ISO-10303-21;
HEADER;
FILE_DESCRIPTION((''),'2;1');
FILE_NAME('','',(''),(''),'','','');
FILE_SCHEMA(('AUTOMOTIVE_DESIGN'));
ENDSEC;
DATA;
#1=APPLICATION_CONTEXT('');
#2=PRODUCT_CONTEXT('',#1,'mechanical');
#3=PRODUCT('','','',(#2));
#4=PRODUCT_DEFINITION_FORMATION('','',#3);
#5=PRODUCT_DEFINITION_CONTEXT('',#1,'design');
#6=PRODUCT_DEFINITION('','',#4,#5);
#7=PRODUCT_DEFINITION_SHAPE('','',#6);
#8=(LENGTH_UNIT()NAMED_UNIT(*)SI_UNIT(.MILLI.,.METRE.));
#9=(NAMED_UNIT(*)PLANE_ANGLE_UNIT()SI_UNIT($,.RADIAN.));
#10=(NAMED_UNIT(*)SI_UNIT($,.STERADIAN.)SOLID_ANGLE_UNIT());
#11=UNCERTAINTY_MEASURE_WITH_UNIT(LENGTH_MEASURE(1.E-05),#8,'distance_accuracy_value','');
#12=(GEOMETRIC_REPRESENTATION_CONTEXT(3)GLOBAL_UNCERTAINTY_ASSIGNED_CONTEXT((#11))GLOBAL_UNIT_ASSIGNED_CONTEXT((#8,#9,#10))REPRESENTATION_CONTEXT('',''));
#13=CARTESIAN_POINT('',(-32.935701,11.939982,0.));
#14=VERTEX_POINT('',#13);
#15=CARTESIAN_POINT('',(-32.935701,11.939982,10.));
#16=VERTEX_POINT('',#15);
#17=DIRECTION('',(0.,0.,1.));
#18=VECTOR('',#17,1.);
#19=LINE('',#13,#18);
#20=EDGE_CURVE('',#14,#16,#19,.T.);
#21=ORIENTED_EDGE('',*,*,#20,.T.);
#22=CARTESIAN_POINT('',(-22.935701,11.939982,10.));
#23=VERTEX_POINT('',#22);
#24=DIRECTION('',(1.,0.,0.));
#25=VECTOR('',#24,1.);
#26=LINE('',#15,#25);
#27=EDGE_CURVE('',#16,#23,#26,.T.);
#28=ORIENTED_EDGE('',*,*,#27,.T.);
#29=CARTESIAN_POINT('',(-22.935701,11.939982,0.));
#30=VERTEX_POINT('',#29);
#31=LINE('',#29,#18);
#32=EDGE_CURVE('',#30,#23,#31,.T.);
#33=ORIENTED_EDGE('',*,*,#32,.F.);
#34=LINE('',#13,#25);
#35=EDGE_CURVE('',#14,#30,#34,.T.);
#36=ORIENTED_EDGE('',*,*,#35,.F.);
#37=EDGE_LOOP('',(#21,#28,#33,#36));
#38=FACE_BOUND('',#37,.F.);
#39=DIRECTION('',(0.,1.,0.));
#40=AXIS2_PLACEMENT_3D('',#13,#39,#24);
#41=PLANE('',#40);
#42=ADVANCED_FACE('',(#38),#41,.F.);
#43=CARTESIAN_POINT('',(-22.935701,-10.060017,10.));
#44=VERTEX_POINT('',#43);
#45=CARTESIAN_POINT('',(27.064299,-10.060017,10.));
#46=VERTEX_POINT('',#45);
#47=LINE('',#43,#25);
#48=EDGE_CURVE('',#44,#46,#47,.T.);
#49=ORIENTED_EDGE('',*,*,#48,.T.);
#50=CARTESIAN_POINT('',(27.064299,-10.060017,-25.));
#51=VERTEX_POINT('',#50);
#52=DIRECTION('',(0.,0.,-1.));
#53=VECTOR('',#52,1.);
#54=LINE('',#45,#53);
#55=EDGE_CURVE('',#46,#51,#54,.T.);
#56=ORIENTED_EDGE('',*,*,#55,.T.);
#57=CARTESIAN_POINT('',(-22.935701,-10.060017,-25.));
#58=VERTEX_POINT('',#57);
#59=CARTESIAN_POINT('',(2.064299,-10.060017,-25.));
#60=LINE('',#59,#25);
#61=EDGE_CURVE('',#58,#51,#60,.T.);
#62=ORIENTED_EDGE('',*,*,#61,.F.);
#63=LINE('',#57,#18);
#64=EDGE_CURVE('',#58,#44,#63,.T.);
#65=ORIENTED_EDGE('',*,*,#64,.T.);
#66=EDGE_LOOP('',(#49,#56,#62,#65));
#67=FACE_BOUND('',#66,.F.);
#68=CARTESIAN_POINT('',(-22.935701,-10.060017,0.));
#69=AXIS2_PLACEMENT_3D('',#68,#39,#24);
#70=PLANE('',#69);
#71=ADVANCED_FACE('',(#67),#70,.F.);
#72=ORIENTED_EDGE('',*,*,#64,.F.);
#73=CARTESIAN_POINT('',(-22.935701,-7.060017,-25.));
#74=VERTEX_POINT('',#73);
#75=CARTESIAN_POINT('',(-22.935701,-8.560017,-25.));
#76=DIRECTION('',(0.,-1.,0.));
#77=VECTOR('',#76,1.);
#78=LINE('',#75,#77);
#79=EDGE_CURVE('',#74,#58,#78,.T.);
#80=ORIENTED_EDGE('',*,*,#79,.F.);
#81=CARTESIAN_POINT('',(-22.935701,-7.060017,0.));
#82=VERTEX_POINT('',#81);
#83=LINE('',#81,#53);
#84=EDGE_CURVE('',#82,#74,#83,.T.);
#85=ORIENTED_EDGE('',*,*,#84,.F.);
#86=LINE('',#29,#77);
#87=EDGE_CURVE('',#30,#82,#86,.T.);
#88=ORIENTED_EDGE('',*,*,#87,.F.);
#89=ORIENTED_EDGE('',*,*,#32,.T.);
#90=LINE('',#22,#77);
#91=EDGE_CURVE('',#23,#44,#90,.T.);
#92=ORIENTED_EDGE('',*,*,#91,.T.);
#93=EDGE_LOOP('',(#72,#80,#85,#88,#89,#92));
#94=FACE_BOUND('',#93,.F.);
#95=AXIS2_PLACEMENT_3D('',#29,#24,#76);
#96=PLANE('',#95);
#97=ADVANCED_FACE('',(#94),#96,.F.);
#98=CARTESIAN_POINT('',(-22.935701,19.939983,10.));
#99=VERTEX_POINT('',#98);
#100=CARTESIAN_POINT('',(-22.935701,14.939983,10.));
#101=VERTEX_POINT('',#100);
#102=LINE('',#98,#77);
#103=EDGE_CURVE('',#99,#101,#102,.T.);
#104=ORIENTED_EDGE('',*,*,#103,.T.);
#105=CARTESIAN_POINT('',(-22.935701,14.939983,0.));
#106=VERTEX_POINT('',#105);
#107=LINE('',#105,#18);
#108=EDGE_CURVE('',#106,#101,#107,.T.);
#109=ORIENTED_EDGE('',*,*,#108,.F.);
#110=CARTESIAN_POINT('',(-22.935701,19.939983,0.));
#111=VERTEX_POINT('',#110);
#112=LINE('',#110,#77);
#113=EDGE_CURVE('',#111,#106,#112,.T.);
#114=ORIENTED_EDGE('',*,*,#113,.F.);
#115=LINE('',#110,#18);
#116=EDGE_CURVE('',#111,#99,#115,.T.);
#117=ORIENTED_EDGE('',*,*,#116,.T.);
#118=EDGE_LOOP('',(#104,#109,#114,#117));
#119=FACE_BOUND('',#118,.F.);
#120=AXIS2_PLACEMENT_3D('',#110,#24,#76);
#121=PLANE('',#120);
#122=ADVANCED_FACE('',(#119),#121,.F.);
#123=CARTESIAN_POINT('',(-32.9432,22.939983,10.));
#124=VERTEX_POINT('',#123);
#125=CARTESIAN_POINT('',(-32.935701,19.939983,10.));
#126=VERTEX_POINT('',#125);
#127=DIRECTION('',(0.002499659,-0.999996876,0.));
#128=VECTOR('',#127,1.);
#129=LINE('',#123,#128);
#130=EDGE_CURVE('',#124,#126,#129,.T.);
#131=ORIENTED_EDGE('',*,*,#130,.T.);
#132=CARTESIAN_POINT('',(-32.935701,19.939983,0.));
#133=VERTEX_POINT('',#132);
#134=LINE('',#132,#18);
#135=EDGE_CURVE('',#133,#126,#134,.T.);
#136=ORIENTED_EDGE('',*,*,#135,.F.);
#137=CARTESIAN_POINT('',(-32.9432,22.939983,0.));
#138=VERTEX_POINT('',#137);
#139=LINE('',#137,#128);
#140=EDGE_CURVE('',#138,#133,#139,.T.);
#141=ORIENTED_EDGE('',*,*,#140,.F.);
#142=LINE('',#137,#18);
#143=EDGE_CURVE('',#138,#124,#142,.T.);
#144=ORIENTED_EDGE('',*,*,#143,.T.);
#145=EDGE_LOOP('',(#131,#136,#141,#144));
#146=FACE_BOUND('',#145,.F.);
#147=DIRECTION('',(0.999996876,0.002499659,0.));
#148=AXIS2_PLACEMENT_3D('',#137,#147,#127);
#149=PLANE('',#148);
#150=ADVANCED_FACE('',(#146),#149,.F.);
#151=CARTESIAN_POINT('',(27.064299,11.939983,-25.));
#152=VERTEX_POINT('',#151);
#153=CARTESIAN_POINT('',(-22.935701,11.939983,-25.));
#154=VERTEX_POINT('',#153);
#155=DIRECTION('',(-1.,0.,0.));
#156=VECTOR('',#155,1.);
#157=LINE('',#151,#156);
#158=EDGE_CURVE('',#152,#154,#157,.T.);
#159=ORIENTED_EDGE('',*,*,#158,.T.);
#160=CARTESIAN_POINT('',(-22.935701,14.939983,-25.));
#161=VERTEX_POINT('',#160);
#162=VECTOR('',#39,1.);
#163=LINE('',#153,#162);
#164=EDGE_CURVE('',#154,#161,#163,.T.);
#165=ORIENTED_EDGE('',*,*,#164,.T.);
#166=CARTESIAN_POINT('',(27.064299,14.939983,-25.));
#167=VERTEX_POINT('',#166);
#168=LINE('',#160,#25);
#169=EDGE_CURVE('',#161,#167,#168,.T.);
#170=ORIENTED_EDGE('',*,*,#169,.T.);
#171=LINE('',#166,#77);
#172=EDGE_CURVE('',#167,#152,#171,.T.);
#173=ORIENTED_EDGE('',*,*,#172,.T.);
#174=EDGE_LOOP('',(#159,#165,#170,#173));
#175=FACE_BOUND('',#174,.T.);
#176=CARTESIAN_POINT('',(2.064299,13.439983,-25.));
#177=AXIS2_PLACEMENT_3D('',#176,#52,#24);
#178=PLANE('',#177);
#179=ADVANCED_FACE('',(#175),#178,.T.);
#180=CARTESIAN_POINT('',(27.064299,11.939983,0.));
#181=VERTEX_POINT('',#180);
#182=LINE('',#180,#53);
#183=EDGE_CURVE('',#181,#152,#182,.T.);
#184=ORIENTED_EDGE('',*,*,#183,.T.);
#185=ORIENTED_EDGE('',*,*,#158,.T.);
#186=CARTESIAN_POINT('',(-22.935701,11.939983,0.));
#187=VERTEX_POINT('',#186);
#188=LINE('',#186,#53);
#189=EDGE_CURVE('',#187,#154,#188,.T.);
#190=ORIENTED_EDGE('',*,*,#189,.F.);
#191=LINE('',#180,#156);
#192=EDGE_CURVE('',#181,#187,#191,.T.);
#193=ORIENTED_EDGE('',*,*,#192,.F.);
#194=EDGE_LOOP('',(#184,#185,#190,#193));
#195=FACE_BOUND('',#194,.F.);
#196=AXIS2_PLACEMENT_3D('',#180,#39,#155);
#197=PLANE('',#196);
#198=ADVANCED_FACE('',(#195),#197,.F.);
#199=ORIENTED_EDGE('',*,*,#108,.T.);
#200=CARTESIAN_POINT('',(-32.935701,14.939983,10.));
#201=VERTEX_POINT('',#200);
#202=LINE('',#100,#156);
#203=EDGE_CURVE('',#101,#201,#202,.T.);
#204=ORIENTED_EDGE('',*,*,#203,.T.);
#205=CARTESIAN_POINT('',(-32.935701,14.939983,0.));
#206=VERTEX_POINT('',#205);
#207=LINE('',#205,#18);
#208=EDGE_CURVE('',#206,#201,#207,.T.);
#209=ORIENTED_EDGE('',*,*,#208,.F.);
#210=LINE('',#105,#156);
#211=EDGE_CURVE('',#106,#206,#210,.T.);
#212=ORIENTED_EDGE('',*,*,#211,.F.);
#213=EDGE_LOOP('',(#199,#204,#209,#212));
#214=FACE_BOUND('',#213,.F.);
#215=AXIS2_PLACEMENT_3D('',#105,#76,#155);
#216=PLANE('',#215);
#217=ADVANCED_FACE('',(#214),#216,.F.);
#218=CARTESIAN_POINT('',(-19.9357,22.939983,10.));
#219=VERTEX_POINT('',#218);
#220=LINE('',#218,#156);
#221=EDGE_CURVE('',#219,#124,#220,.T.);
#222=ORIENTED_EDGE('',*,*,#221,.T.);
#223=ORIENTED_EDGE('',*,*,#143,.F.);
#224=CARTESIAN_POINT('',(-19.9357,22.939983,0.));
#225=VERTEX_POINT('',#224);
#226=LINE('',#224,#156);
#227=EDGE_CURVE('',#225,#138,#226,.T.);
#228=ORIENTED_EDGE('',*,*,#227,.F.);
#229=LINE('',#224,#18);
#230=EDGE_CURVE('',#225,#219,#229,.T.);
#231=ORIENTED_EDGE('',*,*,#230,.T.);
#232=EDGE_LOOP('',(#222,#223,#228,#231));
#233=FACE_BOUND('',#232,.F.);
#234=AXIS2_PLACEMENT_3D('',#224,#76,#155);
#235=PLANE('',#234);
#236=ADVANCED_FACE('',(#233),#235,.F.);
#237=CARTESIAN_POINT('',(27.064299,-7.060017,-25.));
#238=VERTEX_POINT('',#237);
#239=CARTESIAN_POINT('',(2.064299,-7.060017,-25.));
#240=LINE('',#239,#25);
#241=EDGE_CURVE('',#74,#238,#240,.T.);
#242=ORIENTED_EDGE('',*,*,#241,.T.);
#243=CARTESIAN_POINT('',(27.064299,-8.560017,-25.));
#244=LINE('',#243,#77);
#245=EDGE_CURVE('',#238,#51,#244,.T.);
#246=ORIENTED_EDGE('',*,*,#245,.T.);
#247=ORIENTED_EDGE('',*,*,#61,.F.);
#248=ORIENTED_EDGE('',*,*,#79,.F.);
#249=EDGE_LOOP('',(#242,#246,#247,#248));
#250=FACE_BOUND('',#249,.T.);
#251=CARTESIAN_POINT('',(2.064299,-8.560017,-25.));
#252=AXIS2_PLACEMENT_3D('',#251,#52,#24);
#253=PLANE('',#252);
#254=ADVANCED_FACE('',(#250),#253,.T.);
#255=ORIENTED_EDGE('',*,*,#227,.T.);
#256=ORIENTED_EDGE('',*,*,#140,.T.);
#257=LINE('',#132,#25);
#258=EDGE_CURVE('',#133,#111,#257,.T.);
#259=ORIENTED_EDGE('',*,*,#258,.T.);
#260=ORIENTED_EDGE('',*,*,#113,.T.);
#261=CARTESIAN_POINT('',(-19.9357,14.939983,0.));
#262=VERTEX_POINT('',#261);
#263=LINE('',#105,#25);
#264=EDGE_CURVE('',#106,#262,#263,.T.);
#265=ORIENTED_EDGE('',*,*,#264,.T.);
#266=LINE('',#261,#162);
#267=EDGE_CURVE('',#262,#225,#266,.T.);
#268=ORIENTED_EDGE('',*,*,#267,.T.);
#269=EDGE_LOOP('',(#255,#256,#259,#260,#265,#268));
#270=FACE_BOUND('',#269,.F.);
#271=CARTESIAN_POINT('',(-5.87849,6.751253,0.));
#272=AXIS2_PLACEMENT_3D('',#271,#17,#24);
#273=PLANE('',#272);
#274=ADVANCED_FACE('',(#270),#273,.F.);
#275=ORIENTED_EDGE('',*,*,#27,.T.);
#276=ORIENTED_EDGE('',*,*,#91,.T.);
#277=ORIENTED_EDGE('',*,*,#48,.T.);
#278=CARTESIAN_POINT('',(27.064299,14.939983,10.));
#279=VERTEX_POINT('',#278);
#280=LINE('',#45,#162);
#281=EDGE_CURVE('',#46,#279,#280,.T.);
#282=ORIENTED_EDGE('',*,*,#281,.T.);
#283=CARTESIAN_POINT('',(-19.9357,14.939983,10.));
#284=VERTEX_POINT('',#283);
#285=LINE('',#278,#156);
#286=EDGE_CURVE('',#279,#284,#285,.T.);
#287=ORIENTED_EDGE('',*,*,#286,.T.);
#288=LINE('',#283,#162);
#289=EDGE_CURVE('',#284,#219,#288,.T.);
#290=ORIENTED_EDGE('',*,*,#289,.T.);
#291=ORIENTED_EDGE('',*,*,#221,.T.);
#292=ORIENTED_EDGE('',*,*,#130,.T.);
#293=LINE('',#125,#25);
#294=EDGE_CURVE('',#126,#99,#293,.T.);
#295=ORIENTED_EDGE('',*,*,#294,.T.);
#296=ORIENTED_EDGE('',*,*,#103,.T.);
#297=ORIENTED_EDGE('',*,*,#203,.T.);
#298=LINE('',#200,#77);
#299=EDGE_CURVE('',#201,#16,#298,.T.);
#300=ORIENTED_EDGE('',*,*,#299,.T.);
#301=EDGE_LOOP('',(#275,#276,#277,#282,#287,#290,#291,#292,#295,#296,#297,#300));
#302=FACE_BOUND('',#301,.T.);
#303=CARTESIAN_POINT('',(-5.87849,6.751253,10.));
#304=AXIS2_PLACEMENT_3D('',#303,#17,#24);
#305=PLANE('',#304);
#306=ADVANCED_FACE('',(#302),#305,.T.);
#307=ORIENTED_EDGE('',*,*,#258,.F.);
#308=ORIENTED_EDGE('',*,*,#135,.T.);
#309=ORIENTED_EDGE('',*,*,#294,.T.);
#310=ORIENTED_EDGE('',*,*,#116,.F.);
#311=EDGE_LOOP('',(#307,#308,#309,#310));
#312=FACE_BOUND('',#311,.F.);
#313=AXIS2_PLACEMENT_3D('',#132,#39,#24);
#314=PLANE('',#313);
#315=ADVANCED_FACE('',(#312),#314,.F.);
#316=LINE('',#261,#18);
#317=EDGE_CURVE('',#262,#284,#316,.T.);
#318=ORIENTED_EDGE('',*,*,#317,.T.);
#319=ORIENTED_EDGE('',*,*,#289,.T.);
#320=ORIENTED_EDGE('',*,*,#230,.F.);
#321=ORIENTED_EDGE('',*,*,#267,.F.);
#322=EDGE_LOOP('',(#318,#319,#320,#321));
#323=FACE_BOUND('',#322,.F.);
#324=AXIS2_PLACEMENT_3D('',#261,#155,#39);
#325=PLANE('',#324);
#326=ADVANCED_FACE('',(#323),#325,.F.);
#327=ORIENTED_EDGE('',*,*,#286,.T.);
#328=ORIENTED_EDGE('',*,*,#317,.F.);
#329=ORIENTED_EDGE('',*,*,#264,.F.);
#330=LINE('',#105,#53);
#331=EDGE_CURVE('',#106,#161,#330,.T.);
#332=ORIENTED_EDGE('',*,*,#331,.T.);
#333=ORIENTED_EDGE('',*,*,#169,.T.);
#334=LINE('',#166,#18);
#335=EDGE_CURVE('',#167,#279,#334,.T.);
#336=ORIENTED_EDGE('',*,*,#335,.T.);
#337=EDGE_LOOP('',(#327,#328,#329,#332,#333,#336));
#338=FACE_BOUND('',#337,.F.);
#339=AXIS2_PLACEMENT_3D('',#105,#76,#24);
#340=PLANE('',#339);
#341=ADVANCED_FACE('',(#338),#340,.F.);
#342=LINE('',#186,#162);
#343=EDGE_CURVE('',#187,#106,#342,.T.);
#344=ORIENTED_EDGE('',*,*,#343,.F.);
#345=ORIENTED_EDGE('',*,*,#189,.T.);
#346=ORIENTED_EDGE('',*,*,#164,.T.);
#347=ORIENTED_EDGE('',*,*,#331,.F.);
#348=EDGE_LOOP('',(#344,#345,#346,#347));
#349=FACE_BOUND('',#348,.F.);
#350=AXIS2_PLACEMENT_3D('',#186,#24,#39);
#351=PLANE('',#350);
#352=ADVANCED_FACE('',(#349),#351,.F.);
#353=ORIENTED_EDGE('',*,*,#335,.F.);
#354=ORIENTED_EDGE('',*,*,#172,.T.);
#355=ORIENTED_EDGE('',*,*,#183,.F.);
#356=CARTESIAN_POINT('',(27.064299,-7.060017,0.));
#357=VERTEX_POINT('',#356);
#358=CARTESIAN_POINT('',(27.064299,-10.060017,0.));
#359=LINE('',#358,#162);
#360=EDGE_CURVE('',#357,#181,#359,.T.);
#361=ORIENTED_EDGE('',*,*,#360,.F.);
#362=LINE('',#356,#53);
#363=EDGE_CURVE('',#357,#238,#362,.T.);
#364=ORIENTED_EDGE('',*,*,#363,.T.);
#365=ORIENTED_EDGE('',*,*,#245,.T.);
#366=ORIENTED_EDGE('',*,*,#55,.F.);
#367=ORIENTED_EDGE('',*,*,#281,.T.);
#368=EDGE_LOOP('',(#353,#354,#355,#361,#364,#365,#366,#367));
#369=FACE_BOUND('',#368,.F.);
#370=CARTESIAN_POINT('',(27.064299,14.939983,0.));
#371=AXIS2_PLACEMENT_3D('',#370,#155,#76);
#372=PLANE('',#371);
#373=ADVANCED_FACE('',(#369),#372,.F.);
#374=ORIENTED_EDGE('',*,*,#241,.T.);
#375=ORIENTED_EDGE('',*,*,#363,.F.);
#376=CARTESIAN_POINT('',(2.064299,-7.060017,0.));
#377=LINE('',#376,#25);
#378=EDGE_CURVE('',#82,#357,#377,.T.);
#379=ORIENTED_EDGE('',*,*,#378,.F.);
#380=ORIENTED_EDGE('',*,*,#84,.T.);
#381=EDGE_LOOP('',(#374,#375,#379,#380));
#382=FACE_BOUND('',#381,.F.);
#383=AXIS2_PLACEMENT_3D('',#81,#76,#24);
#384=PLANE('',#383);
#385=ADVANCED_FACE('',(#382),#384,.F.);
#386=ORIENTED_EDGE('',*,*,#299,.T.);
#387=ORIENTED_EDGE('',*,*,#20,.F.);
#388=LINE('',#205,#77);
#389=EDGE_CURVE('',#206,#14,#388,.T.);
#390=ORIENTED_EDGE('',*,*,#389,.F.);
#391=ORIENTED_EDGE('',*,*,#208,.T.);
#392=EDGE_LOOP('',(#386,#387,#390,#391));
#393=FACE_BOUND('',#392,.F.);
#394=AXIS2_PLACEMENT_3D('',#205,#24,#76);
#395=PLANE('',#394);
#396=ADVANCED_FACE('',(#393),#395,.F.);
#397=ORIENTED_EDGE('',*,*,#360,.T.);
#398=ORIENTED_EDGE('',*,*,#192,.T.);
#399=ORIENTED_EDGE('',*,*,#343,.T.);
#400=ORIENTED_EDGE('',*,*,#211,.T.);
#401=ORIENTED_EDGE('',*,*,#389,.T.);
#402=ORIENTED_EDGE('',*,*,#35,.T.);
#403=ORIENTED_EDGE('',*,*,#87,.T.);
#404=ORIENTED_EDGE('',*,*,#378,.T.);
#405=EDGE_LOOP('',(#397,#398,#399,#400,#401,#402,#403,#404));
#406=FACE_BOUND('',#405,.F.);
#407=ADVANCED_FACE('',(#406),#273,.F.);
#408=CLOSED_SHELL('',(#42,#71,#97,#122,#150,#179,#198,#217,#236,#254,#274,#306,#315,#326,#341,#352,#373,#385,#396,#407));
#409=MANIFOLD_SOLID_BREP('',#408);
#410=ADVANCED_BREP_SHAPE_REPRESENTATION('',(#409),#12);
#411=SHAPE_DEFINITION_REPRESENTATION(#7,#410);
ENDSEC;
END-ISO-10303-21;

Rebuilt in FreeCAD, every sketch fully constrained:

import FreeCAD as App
import Part
import Sketcher

V = App.Vector
Q = App.Units.Quantity


def add_polygon(sketch, points):
    """Adds a closed chain of lines whose ends are joined by coincident constraints."""
    first, n = sketch.GeometryCount, len(points)
    for a, b in zip(points, points[1:] + points[:1]):
        sketch.addGeometry(Part.LineSegment(App.Vector(*a, 0), App.Vector(*b, 0)), False)
    for i in range(n):
        sketch.addConstraint(Sketcher.Constraint("Coincident", first + i, 2, first + (i + 1) % n, 1))

doc = App.newDocument("Part")
body = doc.addObject("PartDesign::Body", "Body")

# Sketch on XY plane
sketch1 = body.newObject("Sketcher::SketchObject", "Sketch")
sketch1.AttachmentSupport = (doc.getObject("XY_Plane"), [""])
sketch1.MapMode = "FlatFace"
add_polygon(sketch1, [(-32.9432, 22.939983), (-32.935701, 19.939983), (-22.935701, 19.939983), (-22.935701, 14.939983), (-32.935701, 14.939983), (-32.935701, 11.939982), (-22.935701, 11.939982), (-22.935701, -10.060017), (27.064299, -10.060017), (27.064299, 14.939983), (-19.9357, 14.939983), (-19.9357, 22.939983)])  # lines 0-11
sketch1.addConstraint([
    Sketcher.Constraint("Horizontal", 1),
    Sketcher.Constraint("Vertical", 2),
    Sketcher.Constraint("Horizontal", 3),
    Sketcher.Constraint("Vertical", 4),
    Sketcher.Constraint("Horizontal", 5),
    Sketcher.Constraint("Vertical", 6),
    Sketcher.Constraint("Horizontal", 7),
    Sketcher.Constraint("Vertical", 8),
    Sketcher.Constraint("Horizontal", 9),
    Sketcher.Constraint("Vertical", 10),
    Sketcher.Constraint("Horizontal", 11),
    Sketcher.Constraint("Horizontal", 3, 2, 8, 2),
    Sketcher.Constraint("Vertical", 0, 2, 3, 2),
    Sketcher.Constraint("Vertical", 2, 2, 5, 2),
    Sketcher.Constraint("DistanceX", 1, 1, 1, 2, Q("10 mm")),
    Sketcher.Constraint("DistanceX", 7, 1, 7, 2, Q("50 mm")),
    Sketcher.Constraint("DistanceX", 9, 2, 9, 1, Q("46.999999 mm")),
    Sketcher.Constraint("DistanceY", 2, 2, 2, 1, Q("5 mm")),
    Sketcher.Constraint("DistanceY", 4, 2, 4, 1, Q("3.000001 mm")),
    Sketcher.Constraint("DistanceY", 6, 2, 6, 1, Q("21.999999 mm")),
    Sketcher.Constraint("DistanceY", 10, 1, 10, 2, Q("8 mm")),
    Sketcher.Constraint("DistanceX", 11, 2, 11, 1, Q("13.0075 mm")),
    Sketcher.Constraint("DistanceX", 0, 2, -1, 1, Q("32.935701 mm")),
    Sketcher.Constraint("DistanceY", -1, 1, 0, 2, Q("19.939983 mm")),
])
pad1 = body.newObject("PartDesign::Pad", "Pad")
pad1.Profile = sketch1
pad1.Length = 10

# Sketch on XY plane
sketch2 = body.newObject("Sketcher::SketchObject", "Sketch001")
sketch2.AttachmentSupport = (doc.getObject("XY_Plane"), [""])
sketch2.MapMode = "FlatFace"
add_polygon(sketch2, [(27.064299, 11.939983), (-22.935701, 11.939983), (-22.935701, 14.939983), (27.064299, 14.939983)])  # lines 0-3
add_polygon(sketch2, [(-22.935701, -10.060017), (-22.935701, -7.060017), (27.064299, -7.060017), (27.064299, -10.060017)])  # lines 4-7
sketch2.addConstraint([
    Sketcher.Constraint("Horizontal", 0),
    Sketcher.Constraint("Vertical", 1),
    Sketcher.Constraint("Horizontal", 2),
    Sketcher.Constraint("Vertical", 3),
    Sketcher.Constraint("Vertical", 4),
    Sketcher.Constraint("Horizontal", 5),
    Sketcher.Constraint("Vertical", 6),
    Sketcher.Constraint("Horizontal", 7),
    Sketcher.Constraint("Vertical", 1, 2, 4, 2),
    Sketcher.Constraint("Vertical", 3, 2, 5, 2),
    Sketcher.Constraint("Equal", 3, 4),
    Sketcher.Constraint("DistanceX", 0, 2, 0, 1, Q("50 mm")),
    Sketcher.Constraint("DistanceY", 1, 1, 1, 2, Q("3 mm")),
    Sketcher.Constraint("DistanceY", 4, 2, 0, 2, Q("19 mm")),
    Sketcher.Constraint("DistanceX", 0, 2, -1, 1, Q("22.935701 mm")),
    Sketcher.Constraint("DistanceY", -1, 1, 0, 2, Q("11.939983 mm")),
])
pad2 = body.newObject("PartDesign::Pad", "Pad001")
pad2.Profile = sketch2
pad2.Length = 25
pad2.Reversed = True

doc.recompute()
